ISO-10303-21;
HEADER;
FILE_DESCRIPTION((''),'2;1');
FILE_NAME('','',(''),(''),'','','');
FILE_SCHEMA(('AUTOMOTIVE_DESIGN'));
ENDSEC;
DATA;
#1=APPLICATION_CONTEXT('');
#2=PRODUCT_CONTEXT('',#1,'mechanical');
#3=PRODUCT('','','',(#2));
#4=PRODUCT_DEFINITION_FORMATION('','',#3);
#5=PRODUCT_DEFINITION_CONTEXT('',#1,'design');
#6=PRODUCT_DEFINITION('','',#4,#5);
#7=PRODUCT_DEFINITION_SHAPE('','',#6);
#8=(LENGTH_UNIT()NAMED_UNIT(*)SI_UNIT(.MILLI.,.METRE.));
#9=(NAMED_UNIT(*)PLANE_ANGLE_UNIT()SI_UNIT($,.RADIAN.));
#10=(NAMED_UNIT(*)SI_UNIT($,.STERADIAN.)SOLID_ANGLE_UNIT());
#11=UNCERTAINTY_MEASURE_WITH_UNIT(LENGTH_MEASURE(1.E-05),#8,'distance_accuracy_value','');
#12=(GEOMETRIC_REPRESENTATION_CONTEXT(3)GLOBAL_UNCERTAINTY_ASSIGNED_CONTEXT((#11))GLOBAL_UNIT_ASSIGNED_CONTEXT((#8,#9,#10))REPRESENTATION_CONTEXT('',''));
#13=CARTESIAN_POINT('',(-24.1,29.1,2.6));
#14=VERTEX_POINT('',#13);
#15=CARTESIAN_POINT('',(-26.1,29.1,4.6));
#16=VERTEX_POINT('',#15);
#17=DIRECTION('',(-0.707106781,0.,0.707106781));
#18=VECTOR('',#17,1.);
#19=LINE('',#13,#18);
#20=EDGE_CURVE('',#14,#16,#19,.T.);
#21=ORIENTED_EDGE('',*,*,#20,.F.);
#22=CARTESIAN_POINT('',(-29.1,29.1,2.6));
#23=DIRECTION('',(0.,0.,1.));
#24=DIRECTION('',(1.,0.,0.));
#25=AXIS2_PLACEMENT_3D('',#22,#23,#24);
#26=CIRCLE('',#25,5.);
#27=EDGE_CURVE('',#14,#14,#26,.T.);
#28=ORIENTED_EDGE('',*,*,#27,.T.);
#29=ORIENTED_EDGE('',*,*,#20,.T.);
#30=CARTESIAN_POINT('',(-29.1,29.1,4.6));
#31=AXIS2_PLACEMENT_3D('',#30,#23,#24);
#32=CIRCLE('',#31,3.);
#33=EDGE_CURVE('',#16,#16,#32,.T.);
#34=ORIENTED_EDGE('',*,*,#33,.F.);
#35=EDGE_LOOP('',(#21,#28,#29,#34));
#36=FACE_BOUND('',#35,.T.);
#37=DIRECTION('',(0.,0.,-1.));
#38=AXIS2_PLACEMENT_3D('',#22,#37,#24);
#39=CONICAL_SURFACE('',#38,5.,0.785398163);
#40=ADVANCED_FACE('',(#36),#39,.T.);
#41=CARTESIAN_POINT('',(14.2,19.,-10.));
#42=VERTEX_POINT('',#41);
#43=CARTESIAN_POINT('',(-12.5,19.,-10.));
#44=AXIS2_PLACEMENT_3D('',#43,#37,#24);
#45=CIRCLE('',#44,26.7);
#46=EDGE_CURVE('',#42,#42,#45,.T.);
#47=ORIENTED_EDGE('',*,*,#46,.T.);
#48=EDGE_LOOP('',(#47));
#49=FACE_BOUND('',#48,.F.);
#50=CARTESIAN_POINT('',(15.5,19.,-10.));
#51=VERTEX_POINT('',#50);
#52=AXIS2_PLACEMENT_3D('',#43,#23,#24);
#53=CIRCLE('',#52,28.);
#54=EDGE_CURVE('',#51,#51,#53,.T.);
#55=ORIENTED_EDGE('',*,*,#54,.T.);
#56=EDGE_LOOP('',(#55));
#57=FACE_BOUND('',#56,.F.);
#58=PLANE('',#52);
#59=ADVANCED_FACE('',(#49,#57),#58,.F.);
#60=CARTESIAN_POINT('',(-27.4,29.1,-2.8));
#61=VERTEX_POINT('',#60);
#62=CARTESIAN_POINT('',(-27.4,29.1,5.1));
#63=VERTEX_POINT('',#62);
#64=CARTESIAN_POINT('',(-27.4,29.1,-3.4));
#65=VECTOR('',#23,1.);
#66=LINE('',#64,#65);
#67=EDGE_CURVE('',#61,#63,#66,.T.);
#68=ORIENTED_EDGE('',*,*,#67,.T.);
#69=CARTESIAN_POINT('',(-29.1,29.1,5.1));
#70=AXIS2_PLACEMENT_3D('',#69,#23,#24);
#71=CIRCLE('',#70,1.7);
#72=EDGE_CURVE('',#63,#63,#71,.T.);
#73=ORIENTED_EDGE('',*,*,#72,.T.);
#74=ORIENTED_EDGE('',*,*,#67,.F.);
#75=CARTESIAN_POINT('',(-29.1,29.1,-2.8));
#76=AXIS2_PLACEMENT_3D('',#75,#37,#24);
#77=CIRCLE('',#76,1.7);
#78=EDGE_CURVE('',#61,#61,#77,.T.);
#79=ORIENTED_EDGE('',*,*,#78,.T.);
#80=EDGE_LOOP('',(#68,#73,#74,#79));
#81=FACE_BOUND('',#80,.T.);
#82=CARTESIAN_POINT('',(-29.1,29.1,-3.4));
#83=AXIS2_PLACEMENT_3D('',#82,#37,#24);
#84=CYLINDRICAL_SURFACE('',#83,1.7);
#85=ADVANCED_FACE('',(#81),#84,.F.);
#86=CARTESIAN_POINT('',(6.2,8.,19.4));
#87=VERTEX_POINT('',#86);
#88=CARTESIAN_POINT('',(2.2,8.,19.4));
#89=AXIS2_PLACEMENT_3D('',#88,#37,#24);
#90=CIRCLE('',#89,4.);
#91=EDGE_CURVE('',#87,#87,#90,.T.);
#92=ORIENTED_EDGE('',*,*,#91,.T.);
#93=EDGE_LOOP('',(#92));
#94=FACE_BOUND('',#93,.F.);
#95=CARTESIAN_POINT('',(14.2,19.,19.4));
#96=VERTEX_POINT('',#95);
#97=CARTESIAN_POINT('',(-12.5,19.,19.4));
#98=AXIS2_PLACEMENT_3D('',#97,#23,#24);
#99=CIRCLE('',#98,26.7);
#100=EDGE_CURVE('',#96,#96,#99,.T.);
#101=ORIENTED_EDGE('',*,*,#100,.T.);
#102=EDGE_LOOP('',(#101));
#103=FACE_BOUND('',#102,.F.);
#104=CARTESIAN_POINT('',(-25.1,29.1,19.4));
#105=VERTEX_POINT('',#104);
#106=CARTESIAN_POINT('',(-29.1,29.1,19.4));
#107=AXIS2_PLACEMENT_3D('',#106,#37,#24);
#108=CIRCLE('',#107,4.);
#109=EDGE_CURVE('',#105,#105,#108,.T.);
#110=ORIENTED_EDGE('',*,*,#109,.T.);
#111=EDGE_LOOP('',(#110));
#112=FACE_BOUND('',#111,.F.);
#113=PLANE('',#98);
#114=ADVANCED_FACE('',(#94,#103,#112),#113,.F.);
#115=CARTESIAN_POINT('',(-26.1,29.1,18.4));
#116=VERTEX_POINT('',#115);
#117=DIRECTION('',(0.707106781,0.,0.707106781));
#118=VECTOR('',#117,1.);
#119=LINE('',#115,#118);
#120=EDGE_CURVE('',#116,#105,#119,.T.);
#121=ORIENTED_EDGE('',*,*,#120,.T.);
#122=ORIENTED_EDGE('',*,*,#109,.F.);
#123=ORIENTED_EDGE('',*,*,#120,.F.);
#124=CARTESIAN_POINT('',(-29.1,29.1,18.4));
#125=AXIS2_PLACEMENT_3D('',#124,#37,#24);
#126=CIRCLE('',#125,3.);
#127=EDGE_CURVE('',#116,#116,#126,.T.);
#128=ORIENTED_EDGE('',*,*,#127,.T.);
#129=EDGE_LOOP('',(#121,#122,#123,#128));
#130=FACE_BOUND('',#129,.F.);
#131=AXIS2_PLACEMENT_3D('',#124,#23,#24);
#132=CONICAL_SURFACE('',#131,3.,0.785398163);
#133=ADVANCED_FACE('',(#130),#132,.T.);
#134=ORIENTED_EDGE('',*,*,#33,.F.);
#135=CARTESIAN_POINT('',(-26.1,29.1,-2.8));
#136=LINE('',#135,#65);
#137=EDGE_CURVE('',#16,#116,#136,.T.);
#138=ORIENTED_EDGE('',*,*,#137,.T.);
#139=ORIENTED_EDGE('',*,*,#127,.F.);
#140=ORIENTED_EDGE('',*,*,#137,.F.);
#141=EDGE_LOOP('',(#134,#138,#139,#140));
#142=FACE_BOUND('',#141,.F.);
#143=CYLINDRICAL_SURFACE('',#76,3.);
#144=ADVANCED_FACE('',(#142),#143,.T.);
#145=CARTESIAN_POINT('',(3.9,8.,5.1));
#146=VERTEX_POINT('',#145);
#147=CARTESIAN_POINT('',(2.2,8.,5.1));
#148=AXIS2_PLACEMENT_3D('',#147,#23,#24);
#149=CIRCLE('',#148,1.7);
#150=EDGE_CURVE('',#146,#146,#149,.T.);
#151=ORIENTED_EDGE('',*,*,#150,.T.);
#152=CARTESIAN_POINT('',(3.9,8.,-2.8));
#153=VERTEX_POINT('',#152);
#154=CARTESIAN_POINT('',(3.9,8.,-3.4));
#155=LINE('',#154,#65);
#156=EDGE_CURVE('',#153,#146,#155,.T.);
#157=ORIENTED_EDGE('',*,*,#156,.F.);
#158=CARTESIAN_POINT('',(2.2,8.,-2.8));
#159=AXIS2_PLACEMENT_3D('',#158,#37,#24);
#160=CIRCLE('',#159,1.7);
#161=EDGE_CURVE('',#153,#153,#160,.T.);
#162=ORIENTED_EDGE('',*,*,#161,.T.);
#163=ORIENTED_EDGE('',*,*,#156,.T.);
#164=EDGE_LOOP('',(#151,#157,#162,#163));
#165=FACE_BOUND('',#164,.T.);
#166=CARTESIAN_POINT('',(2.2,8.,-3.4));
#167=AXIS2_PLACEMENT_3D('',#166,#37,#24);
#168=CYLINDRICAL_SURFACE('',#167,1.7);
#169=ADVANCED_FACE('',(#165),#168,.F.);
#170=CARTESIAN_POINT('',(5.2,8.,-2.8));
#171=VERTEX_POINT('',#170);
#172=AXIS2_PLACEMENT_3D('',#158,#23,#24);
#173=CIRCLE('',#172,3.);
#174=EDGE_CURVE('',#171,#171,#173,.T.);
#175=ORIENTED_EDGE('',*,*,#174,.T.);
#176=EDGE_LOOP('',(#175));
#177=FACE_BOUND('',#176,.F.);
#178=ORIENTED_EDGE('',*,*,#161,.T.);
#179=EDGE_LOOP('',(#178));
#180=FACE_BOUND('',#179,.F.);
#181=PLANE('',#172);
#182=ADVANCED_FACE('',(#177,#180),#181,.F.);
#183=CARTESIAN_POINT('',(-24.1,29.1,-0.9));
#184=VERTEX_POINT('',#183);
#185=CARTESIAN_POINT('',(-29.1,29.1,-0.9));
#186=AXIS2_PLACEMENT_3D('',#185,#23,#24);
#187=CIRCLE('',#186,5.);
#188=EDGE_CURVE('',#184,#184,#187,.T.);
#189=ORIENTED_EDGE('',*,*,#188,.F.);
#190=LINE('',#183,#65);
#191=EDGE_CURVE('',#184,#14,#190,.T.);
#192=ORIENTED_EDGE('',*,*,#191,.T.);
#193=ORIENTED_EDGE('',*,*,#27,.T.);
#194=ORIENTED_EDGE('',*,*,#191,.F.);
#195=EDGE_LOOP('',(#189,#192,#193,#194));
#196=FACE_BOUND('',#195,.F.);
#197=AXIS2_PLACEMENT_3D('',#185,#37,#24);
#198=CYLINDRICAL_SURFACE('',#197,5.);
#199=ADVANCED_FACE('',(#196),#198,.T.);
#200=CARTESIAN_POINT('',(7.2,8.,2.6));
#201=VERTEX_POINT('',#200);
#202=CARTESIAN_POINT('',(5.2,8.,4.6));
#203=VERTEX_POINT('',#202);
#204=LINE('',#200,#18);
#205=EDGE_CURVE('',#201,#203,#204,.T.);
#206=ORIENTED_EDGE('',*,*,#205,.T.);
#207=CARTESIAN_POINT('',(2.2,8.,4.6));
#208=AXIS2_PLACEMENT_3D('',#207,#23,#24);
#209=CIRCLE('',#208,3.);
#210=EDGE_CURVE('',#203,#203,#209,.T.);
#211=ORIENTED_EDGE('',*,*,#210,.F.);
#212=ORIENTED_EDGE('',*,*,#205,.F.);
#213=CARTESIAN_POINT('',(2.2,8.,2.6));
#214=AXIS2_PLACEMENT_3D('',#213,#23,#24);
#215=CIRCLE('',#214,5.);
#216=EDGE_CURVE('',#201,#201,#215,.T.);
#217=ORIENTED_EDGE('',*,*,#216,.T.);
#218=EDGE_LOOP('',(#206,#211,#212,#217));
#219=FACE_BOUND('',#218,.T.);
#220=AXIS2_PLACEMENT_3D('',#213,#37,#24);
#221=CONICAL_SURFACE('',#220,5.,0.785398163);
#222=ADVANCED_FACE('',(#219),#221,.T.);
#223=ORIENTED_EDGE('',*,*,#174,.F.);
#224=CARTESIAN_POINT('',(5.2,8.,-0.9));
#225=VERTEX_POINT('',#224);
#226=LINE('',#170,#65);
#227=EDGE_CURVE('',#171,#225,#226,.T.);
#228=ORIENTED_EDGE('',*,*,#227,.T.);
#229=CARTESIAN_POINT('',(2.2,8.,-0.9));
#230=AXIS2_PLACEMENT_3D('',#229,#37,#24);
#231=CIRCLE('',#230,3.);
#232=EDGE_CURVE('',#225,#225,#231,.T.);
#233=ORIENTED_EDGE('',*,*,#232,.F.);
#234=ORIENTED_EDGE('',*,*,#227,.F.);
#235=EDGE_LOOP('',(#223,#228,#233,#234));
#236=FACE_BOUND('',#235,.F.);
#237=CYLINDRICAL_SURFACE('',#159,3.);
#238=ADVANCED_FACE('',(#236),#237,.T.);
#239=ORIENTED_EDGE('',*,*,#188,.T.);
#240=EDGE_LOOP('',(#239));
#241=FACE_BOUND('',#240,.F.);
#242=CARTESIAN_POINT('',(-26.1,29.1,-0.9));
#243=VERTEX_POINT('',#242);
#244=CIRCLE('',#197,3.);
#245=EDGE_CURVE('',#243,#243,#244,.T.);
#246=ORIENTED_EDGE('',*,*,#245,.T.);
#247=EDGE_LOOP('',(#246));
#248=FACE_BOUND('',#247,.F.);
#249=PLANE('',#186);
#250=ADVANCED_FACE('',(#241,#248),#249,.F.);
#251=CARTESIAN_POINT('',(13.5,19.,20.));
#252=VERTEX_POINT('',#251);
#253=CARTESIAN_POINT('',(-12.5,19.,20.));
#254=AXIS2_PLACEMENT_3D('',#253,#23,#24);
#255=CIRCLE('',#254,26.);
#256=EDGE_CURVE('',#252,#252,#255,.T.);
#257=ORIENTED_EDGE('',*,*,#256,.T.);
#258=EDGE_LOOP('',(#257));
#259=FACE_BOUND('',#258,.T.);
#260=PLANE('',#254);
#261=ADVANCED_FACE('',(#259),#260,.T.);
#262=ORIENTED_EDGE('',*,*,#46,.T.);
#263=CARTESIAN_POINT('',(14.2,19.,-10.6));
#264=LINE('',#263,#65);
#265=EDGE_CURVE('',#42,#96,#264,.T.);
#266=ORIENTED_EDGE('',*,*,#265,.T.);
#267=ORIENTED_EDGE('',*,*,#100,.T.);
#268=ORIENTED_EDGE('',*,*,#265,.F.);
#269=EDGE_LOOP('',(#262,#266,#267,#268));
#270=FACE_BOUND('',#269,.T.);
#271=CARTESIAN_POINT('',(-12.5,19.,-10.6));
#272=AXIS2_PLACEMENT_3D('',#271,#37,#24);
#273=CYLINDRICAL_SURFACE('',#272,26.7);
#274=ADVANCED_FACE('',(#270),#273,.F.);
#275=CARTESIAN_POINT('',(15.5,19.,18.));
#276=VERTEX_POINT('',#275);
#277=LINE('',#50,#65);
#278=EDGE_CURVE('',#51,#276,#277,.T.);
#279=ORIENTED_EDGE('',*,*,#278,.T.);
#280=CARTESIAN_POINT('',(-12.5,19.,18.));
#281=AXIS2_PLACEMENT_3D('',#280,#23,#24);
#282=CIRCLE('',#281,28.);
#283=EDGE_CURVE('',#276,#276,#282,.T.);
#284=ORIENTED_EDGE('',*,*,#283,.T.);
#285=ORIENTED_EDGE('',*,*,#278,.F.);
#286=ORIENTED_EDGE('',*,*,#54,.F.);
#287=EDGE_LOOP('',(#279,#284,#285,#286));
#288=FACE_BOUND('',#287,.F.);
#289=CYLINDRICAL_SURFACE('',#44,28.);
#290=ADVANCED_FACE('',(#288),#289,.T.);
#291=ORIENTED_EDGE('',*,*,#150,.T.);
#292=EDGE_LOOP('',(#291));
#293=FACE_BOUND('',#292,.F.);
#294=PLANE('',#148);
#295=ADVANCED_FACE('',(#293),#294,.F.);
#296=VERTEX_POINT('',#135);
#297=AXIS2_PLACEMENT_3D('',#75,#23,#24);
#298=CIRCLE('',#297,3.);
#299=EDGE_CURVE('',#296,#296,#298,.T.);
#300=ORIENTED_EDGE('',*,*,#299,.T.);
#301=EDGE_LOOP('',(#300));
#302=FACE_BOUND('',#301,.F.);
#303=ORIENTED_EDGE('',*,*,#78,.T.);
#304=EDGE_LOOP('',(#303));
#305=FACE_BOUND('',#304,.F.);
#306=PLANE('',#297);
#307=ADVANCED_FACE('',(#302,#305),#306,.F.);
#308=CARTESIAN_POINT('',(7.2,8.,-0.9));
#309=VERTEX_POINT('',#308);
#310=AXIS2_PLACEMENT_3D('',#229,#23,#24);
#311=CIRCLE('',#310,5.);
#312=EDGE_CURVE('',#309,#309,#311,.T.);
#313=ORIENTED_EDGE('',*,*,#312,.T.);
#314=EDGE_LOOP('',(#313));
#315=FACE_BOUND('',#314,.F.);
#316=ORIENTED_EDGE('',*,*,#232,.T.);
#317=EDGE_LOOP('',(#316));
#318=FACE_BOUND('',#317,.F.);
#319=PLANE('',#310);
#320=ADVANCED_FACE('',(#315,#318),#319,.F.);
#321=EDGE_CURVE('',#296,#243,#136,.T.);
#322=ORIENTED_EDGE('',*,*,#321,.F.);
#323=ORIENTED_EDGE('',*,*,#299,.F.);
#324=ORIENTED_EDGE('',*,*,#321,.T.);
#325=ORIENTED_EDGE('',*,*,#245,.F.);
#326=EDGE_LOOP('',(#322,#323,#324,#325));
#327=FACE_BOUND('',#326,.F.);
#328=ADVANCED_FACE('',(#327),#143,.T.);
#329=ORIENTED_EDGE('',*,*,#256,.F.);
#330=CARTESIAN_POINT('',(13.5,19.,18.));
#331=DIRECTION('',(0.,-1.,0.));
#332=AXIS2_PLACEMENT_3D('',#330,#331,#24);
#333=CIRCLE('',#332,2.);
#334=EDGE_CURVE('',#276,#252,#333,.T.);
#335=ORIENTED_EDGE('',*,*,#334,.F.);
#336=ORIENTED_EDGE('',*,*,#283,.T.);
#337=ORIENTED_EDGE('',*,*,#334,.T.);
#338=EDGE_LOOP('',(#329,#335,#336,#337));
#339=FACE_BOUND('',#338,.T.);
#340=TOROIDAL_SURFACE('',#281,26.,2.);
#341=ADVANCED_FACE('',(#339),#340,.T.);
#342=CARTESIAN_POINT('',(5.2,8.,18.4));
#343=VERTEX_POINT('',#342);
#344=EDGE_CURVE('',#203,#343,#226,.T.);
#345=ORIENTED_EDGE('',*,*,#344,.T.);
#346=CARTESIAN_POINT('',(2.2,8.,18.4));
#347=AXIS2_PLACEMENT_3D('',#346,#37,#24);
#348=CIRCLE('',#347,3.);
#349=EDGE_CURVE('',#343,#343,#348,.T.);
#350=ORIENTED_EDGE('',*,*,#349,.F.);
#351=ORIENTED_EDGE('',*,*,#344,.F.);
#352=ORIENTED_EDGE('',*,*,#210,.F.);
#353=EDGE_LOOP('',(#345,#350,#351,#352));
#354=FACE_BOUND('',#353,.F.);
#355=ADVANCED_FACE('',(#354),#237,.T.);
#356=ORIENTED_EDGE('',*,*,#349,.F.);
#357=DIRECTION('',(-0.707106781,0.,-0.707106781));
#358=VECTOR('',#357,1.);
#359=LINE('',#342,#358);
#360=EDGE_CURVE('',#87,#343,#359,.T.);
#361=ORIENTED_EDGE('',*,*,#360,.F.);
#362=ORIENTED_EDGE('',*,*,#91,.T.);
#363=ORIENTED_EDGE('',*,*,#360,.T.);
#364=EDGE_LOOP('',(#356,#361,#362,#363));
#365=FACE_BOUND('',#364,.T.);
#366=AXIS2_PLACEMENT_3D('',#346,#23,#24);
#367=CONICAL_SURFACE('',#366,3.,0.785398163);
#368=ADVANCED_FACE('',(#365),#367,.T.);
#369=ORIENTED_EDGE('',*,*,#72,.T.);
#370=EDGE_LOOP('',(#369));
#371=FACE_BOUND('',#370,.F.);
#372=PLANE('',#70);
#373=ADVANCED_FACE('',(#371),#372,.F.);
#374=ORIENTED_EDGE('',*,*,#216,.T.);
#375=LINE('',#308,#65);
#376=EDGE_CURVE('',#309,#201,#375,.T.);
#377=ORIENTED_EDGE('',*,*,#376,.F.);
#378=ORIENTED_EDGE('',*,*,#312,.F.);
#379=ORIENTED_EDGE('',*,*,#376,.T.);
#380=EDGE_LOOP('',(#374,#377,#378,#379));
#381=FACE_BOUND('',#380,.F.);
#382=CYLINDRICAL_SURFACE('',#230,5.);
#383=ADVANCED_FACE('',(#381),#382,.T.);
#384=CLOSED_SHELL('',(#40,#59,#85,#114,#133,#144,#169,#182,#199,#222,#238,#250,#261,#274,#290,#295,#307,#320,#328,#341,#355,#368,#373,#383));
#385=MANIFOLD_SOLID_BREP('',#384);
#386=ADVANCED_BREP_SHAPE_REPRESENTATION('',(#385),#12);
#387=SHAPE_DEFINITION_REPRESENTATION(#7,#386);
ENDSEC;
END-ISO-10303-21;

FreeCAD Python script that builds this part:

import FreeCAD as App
import Part
import Sketcher

V = App.Vector
Q = App.Units.Quantity


def edges_at(feature, points):
    """Names of the edges that pass closest to the given points."""
    edges = feature.Shape.Edges
    near = lambda p: min(range(len(edges)), key=lambda i: edges[i].distToShape(Part.Vertex(*p))[0])
    return sorted({f"Edge{near(p) + 1}" for p in points})

doc = App.newDocument("Part")
body = doc.addObject("PartDesign::Body", "Body")

# Sketch on XY plane
sketch1 = doc.addObject("Sketcher::SketchObject", "Sketch")
body.addObject(sketch1)
sketch1.AttachmentSupport = (doc.XY_Plane, [""])
sketch1.MapMode = "FlatFace"
sketch1.AttachmentOffset = App.Placement(V(0, 0, -3.4), App.Rotation())
sketch1.addGeometry(Part.Circle(V(2.2, 8, 0), V(0, 0, 1), 1.7), False)
sketch1.addConstraint(Sketcher.Constraint("Diameter", 0, Q("3.4 mm")))
sketch1.addConstraint(Sketcher.Constraint("DistanceY", -1, 1, 0, 3, Q("8 mm")))
sketch1.addConstraint(Sketcher.Constraint("DistanceX", -1, 1, 0, 3, Q("2.2 mm")))
pad1 = doc.addObject("PartDesign::Pad", "Pad")
body.addObject(pad1)
pad1.Profile = sketch1
pad1.Length = 8.5
body2 = doc.addObject("PartDesign::Body", "Body001")

# Sketch on XY plane
sketch2 = doc.addObject("Sketcher::SketchObject", "Sketch001")
body2.addObject(sketch2)
sketch2.AttachmentSupport = (doc.getObject("XY_Plane001"), [""])
sketch2.MapMode = "FlatFace"
sketch2.AttachmentOffset = App.Placement(V(0, 0, -0.9), App.Rotation())
sketch2.addGeometry(Part.Circle(V(2.2, 8, 0), V(0, 0, 1), 5), False)
sketch2.addConstraint(Sketcher.Constraint("Diameter", 0, Q("10 mm")))
sketch2.addConstraint(Sketcher.Constraint("DistanceY", -1, 1, 0, 3, Q("8 mm")))
sketch2.addConstraint(Sketcher.Constraint("DistanceX", -1, 1, 0, 3, Q("2.2 mm")))
pad2 = doc.addObject("PartDesign::Pad", "Pad001")
body2.addObject(pad2)
pad2.Profile = sketch2
pad2.Length = 5.5
doc.recompute()

chamfer = doc.addObject("PartDesign::Chamfer", "Chamfer")
body2.addObject(chamfer)
chamfer.Base = (pad2, edges_at(pad2, [(-2.8, 8, 4.6)]))
chamfer.Size = 2
body3 = doc.addObject("PartDesign::Body", "Body002")

# Sketch on XY plane
sketch3 = doc.addObject("Sketcher::SketchObject", "Sketch002")
body3.addObject(sketch3)
sketch3.AttachmentSupport = (doc.getObject("XY_Plane002"), [""])
sketch3.MapMode = "FlatFace"
sketch3.AttachmentOffset = App.Placement(V(0, 0, -2.8), App.Rotation())
sketch3.addGeometry(Part.Circle(V(2.2, 8, 0), V(0, 0, 1), 3), False)
sketch3.addConstraint(Sketcher.Constraint("Diameter", 0, Q("6 mm")))
sketch3.addConstraint(Sketcher.Constraint("DistanceY", -1, 1, 0, 3, Q("8 mm")))
sketch3.addConstraint(Sketcher.Constraint("DistanceX", -1, 1, 0, 3, Q("2.2 mm")))
pad3 = doc.addObject("PartDesign::Pad", "Pad002")
body3.addObject(pad3)
pad3.Profile = sketch3
pad3.Length = 22.5
doc.recompute()

boolean = doc.addObject("PartDesign::Boolean", "Boolean")
body3.addObject(boolean)
boolean.Type = "Fuse"
boolean.addObjects([body2])
doc.recompute()

boolean2 = doc.addObject("PartDesign::Boolean", "Boolean001")
body3.addObject(boolean2)
boolean2.Type = "Cut"
boolean2.addObjects([body])
body4 = doc.addObject("PartDesign::Body", "Body003")

# Sketch on XY plane
sketch4 = doc.addObject("Sketcher::SketchObject", "Sketch003")
body4.addObject(sketch4)
sketch4.AttachmentSupport = (doc.getObject("XY_Plane003"), [""])
sketch4.MapMode = "FlatFace"
sketch4.AttachmentOffset = App.Placement(V(0, 0, -3.4), App.Rotation())
sketch4.addGeometry(Part.Circle(V(-29.1, 29.1, 0), V(0, 0, 1), 1.7), False)
sketch4.addConstraint(Sketcher.Constraint("Diameter", 0, Q("3.4 mm")))
sketch4.addConstraint(Sketcher.Constraint("DistanceX", 0, 3, -1, 1, Q("29.1 mm")))
sketch4.addConstraint(Sketcher.Constraint("DistanceY", -1, 1, 0, 3, Q("29.1 mm")))
pad4 = doc.addObject("PartDesign::Pad", "Pad003")
body4.addObject(pad4)
pad4.Profile = sketch4
pad4.Length = 8.5
body5 = doc.addObject("PartDesign::Body", "Body004")

# Sketch on XY plane
sketch5 = doc.addObject("Sketcher::SketchObject", "Sketch004")
body5.addObject(sketch5)
sketch5.AttachmentSupport = (doc.getObject("XY_Plane004"), [""])
sketch5.MapMode = "FlatFace"
sketch5.AttachmentOffset = App.Placement(V(0, 0, -0.9), App.Rotation())
sketch5.addGeometry(Part.Circle(V(-29.1, 29.1, 0), V(0, 0, 1), 5), False)
sketch5.addConstraint(Sketcher.Constraint("Diameter", 0, Q("10 mm")))
sketch5.addConstraint(Sketcher.Constraint("DistanceX", 0, 3, -1, 1, Q("29.1 mm")))
sketch5.addConstraint(Sketcher.Constraint("DistanceY", -1, 1, 0, 3, Q("29.1 mm")))
pad5 = doc.addObject("PartDesign::Pad", "Pad004")
body5.addObject(pad5)
pad5.Profile = sketch5
pad5.Length = 5.5
doc.recompute()

chamfer2 = doc.addObject("PartDesign::Chamfer", "Chamfer001")
body5.addObject(chamfer2)
chamfer2.Base = (pad5, edges_at(pad5, [(-34.1, 29.1, 4.6)]))
chamfer2.Size = 2
body6 = doc.addObject("PartDesign::Body", "Body005")

# Sketch on XY plane
sketch6 = doc.addObject("Sketcher::SketchObject", "Sketch005")
body6.addObject(sketch6)
sketch6.AttachmentSupport = (doc.getObject("XY_Plane005"), [""])
sketch6.MapMode = "FlatFace"
sketch6.AttachmentOffset = App.Placement(V(0, 0, -2.8), App.Rotation())
sketch6.addGeometry(Part.Circle(V(-29.1, 29.1, 0), V(0, 0, 1), 3), False)
sketch6.addConstraint(Sketcher.Constraint("Diameter", 0, Q("6 mm")))
sketch6.addConstraint(Sketcher.Constraint("DistanceX", 0, 3, -1, 1, Q("29.1 mm")))
sketch6.addConstraint(Sketcher.Constraint("DistanceY", -1, 1, 0, 3, Q("29.1 mm")))
pad6 = doc.addObject("PartDesign::Pad", "Pad005")
body6.addObject(pad6)
pad6.Profile = sketch6
pad6.Length = 22.5
doc.recompute()

boolean3 = doc.addObject("PartDesign::Boolean", "Boolean002")
body6.addObject(boolean3)
boolean3.Type = "Fuse"
boolean3.addObjects([body5])
doc.recompute()

boolean4 = doc.addObject("PartDesign::Boolean", "Boolean003")
body6.addObject(boolean4)
boolean4.Type = "Cut"
boolean4.addObjects([body4])
body7 = doc.addObject("PartDesign::Body", "Body006")

# Sketch on XY plane
sketch7 = doc.addObject("Sketcher::SketchObject", "Sketch006")
body7.addObject(sketch7)
sketch7.AttachmentSupport = (doc.getObject("XY_Plane006"), [""])
sketch7.MapMode = "FlatFace"
sketch7.AttachmentOffset = App.Placement(V(0, 0, -10.6), App.Rotation())
sketch7.addGeometry(Part.Circle(V(-12.5, 19, 0), V(0, 0, 1), 26.7), False)
sketch7.addConstraint(Sketcher.Constraint("Diameter", 0, Q("53.4 mm")))
sketch7.addConstraint(Sketcher.Constraint("DistanceY", -1, 1, 0, 3, Q("19 mm")))
sketch7.addConstraint(Sketcher.Constraint("DistanceX", 0, 3, -1, 1, Q("12.5 mm")))
pad7 = doc.addObject("PartDesign::Pad", "Pad006")
body7.addObject(pad7)
pad7.Profile = sketch7
pad7.Length = 30
body8 = doc.addObject("PartDesign::Body", "Body007")

# Sketch on XY plane
sketch8 = doc.addObject("Sketcher::SketchObject", "Sketch007")
body8.addObject(sketch8)
sketch8.AttachmentSupport = (doc.getObject("XY_Plane007"), [""])
sketch8.MapMode = "FlatFace"
sketch8.AttachmentOffset = App.Placement(V(0, 0, -10), App.Rotation())
sketch8.addGeometry(Part.Circle(V(-12.5, 19, 0), V(0, 0, 1), 28), False)
sketch8.addConstraint(Sketcher.Constraint("Diameter", 0, Q("56 mm")))
sketch8.addConstraint(Sketcher.Constraint("DistanceY", -1, 1, 0, 3, Q("19 mm")))
sketch8.addConstraint(Sketcher.Constraint("DistanceX", 0, 3, -1, 1, Q("12.5 mm")))
pad8 = doc.addObject("PartDesign::Pad", "Pad007")
body8.addObject(pad8)
pad8.Profile = sketch8
pad8.Length = 30
doc.recompute()

boolean5 = doc.addObject("PartDesign::Boolean", "Boolean004")
body8.addObject(boolean5)
boolean5.Type = "Cut"
boolean5.addObjects([body7])
doc.recompute()

fillet = doc.addObject("PartDesign::Fillet", "Fillet")
body8.addObject(fillet)
fillet.Base = (boolean5, edges_at(boolean5, [(-40.5, 19, 20)]))
fillet.Radius = 2
doc.recompute()

boolean6 = doc.addObject("PartDesign::Boolean", "Boolean005")
body8.addObject(boolean6)
boolean6.Type = "Fuse"
boolean6.addObjects([body3])
doc.recompute()

boolean7 = doc.addObject("PartDesign::Boolean", "Boolean006")
body8.addObject(boolean7)
boolean7.Type = "Fuse"
boolean7.addObjects([body6])
doc.recompute()

chamfer3 = doc.addObject("PartDesign::Chamfer", "Chamfer002")
body8.addObject(chamfer3)
chamfer3.Base = (boolean7, edges_at(boolean7, [(-0.8, 8, 19.4), (-32.1, 29.1, 19.4)]))
chamfer3.Size = 1

doc.recompute()
